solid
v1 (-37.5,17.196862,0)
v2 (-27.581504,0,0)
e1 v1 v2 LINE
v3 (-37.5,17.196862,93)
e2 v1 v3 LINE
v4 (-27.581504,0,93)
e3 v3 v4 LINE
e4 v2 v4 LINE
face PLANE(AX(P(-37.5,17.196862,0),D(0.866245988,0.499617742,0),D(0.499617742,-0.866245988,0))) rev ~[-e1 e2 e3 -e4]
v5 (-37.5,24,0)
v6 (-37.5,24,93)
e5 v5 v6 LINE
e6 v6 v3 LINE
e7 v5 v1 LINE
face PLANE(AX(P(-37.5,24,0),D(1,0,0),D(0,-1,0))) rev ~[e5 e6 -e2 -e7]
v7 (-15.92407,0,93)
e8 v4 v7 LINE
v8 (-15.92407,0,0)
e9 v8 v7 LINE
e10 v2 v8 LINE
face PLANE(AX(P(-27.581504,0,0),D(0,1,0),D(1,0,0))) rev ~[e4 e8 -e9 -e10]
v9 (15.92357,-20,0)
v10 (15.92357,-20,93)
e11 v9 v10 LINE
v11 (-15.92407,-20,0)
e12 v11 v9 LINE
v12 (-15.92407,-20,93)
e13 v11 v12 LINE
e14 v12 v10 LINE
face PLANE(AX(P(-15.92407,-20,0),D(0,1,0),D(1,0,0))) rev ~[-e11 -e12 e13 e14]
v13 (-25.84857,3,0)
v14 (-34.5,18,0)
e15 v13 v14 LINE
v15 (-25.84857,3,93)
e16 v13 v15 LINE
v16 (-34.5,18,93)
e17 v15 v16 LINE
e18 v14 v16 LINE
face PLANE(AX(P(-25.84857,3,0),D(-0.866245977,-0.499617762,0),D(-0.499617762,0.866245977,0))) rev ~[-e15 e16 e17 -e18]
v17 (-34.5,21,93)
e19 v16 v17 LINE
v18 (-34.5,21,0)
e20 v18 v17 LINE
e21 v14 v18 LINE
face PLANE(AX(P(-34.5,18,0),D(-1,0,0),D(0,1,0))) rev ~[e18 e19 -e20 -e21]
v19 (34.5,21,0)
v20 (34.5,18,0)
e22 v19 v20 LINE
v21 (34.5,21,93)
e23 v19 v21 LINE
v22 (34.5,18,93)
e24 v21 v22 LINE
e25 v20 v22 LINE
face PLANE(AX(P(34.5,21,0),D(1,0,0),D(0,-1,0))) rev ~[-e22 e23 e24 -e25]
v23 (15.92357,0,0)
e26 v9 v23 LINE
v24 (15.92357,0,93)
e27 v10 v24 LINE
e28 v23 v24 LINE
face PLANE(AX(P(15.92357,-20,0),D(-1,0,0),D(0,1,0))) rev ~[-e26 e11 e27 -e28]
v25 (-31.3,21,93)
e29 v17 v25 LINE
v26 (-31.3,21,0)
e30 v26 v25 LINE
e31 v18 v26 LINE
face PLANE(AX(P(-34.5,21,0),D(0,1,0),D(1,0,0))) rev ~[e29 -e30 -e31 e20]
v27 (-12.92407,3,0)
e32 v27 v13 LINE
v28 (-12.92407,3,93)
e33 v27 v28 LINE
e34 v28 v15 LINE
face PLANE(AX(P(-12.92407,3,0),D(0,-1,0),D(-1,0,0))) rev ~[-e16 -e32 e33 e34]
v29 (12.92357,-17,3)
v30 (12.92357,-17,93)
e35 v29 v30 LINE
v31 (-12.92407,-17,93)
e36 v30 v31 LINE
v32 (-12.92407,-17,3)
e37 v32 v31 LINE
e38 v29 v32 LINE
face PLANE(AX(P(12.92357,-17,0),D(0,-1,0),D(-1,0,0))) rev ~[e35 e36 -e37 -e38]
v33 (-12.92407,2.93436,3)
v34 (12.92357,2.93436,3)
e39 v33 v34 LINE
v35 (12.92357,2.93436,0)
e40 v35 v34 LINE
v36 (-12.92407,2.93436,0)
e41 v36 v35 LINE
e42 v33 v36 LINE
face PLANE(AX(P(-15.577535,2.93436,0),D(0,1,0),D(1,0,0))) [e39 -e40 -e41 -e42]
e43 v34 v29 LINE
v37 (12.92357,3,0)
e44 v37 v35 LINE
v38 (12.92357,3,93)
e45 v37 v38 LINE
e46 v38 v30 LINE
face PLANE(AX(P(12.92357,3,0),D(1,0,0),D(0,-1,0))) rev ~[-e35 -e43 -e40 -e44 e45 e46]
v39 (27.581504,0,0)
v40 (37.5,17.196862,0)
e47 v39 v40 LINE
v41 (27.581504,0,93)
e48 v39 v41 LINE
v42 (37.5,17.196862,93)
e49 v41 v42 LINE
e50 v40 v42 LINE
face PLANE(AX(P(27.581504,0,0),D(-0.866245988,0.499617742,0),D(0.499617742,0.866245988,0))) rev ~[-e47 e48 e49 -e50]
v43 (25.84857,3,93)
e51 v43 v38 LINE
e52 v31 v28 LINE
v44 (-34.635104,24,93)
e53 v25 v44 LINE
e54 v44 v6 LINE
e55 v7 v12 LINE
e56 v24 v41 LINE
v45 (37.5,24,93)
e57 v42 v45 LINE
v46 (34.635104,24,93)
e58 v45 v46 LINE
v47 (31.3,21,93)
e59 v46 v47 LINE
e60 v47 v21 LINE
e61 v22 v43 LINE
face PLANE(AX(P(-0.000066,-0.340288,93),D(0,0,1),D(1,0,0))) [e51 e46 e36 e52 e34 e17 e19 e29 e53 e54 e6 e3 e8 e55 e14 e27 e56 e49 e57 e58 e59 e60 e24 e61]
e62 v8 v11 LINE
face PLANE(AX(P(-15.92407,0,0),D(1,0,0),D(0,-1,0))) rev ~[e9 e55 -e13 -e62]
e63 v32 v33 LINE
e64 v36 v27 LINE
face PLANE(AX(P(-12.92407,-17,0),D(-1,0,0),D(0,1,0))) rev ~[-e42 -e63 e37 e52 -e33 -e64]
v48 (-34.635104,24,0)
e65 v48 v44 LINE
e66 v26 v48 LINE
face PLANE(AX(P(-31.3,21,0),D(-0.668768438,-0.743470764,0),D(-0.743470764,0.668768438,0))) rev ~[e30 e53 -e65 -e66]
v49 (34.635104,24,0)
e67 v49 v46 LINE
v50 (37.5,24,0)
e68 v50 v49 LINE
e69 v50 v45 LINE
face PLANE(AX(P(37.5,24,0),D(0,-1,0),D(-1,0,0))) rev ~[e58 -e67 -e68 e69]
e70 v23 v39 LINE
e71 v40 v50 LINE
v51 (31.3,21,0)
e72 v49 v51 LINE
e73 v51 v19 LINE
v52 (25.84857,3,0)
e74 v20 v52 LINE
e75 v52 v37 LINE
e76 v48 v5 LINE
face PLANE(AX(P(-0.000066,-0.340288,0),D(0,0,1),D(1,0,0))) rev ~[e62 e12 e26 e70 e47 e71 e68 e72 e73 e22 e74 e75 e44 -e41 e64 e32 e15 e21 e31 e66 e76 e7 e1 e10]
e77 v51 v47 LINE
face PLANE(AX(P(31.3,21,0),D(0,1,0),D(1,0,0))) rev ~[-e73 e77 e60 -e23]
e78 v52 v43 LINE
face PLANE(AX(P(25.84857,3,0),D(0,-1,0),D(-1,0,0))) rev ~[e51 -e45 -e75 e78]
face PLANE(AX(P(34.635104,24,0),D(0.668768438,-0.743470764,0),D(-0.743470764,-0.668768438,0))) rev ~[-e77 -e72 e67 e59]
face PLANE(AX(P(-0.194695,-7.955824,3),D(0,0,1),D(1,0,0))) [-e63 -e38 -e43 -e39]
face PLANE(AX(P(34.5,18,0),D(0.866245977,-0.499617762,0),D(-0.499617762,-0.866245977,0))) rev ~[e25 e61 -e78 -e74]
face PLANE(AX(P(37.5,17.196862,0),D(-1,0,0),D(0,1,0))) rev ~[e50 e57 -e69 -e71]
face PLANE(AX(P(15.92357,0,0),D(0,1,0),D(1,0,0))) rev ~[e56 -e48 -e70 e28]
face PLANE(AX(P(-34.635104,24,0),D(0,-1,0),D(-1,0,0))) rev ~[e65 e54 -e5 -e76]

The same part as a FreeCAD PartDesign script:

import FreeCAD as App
import Part
import Sketcher

V = App.Vector

doc = App.newDocument("Part")
params = doc.addObject("Spreadsheet::Sheet", "Params")
for row, (alias, value) in enumerate([
    ("sketch1_height", "3 mm"),
    ("sketch1_height2", "20 mm"),
    ("sketch1_width", "3.2 mm"),
    ("pad1_length", "93 mm"),
    ("pad2_length", "3 mm"),
], start=1):
    params.set(f"A{row}", alias)
    params.set(f"B{row}", "=" + value)
    params.setAlias(f"B{row}", alias)

body = doc.addObject("PartDesign::Body", "Body")

sketch1 = body.newObject("Sketcher::SketchObject", "Sketch")
sketch1.AttachmentSupport = (doc.getObject("XY_Plane"), [""])
sketch1.MapMode = "FlatFace"
sketch1.addGeometry([
    Part.LineSegment(V(15.9, 0, 0), V(27.6, 0, 0)),
    Part.LineSegment(V(27.6, 0, 0), V(37.5, 17.2, 0)),
    Part.LineSegment(V(37.5, 17.2, 0), V(37.5, 24, 0)),
    Part.LineSegment(V(37.5, 24, 0), V(34.6, 24, 0)),
    Part.LineSegment(V(34.6, 24, 0), V(31.3, 21, 0)),
    Part.LineSegment(V(31.3, 21, 0), V(34.5, 21, 0)),
    Part.LineSegment(V(34.5, 21, 0), V(34.5, 18, 0)),
    Part.LineSegment(V(34.5, 18, 0), V(25.8, 3, 0)),
    Part.LineSegment(V(25.8, 3, 0), V(12.9, 3, 0)),
    Part.LineSegment(V(12.9, 3, 0), V(12.9, -17, 0)),
    Part.LineSegment(V(12.9, -17, 0), V(-12.9, -17, 0)),
    Part.LineSegment(V(-12.9, -17, 0), V(-12.9, 3, 0)),
    Part.LineSegment(V(-12.9, 3, 0), V(-25.8, 3, 0)),
    Part.LineSegment(V(-25.8, 3, 0), V(-34.5, 18, 0)),
    Part.LineSegment(V(-34.5, 18, 0), V(-34.5, 21, 0)),
    Part.LineSegment(V(-34.5, 21, 0), V(-31.3, 21, 0)),
    Part.LineSegment(V(-31.3, 21, 0), V(-34.6, 24, 0)),
    Part.LineSegment(V(-34.6, 24, 0), V(-37.5, 24, 0)),
    Part.LineSegment(V(-37.5, 24, 0), V(-37.5, 17.2, 0)),
    Part.LineSegment(V(-37.5, 17.2, 0), V(-27.6, 0, 0)),
    Part.LineSegment(V(-27.6, 0, 0), V(-15.9, 0, 0)),
    Part.LineSegment(V(-15.9, 0, 0), V(-15.9, -20, 0)),
    Part.LineSegment(V(-15.9, -20, 0), V(15.9, -20, 0)),
    Part.LineSegment(V(15.9, -20, 0), V(15.9, 0, 0)),
], False)
sketch1.addConstraint([
    Sketcher.Constraint("Coincident", 0, 2, 1, 1),
    Sketcher.Constraint("Coincident", 1, 2, 2, 1),
    Sketcher.Constraint("Coincident", 2, 2, 3, 1),
    Sketcher.Constraint("Coincident", 3, 2, 4, 1),
    Sketcher.Constraint("Coincident", 4, 2, 5, 1),
    Sketcher.Constraint("Coincident", 5, 2, 6, 1),
    Sketcher.Constraint("Coincident", 6, 2, 7, 1),
    Sketcher.Constraint("Coincident", 7, 2, 8, 1),
    Sketcher.Constraint("Coincident", 8, 2, 9, 1),
    Sketcher.Constraint("Coincident", 9, 2, 10, 1),
    Sketcher.Constraint("Coincident", 10, 2, 11, 1),
    Sketcher.Constraint("Coincident", 11, 2, 12, 1),
    Sketcher.Constraint("Coincident", 12, 2, 13, 1),
    Sketcher.Constraint("Coincident", 13, 2, 14, 1),
    Sketcher.Constraint("Coincident", 14, 2, 15, 1),
    Sketcher.Constraint("Coincident", 15, 2, 16, 1),
    Sketcher.Constraint("Coincident", 16, 2, 17, 1),
    Sketcher.Constraint("Coincident", 17, 2, 18, 1),
    Sketcher.Constraint("Coincident", 18, 2, 19, 1),
    Sketcher.Constraint("Coincident", 19, 2, 20, 1),
    Sketcher.Constraint("Coincident", 20, 2, 21, 1),
    Sketcher.Constraint("Coincident", 21, 2, 22, 1),
    Sketcher.Constraint("Coincident", 22, 2, 23, 1),
    Sketcher.Constraint("Coincident", 23, 2, 0, 1),
    Sketcher.Constraint("Horizontal", 0),
    Sketcher.Constraint("Vertical", 2),
    Sketcher.Constraint("Horizontal", 3),
    Sketcher.Constraint("Horizontal", 5),
    Sketcher.Constraint("Vertical", 6),
    Sketcher.Constraint("Horizontal", 8),
    Sketcher.Constraint("Vertical", 9),
    Sketcher.Constraint("Horizontal", 10),
    Sketcher.Constraint("Vertical", 11),
    Sketcher.Constraint("Horizontal", 12),
    Sketcher.Constraint("Vertical", 14),
    Sketcher.Constraint("Horizontal", 15),
    Sketcher.Constraint("Horizontal", 17),
    Sketcher.Constraint("Vertical", 18),
    Sketcher.Constraint("Horizontal", 20),
    Sketcher.Constraint("Vertical", 21),
    Sketcher.Constraint("Horizontal", 22),
    Sketcher.Constraint("Vertical", 23),
    Sketcher.Constraint("Symmetric", 0, 2, 19, 2, -1, 1),
    Sketcher.Constraint("Symmetric", 7, 2, 12, 2, -2),
    Sketcher.Constraint("Symmetric", 6, 2, 13, 2, -2),
    Sketcher.Constraint("Symmetric", 4, 2, 15, 2, -2),
    Sketcher.Constraint("Symmetric", 3, 2, 16, 2, -2),
    Sketcher.Constraint("Symmetric", 1, 2, 18, 2, -2),
    Sketcher.Constraint("PointOnObject", 0, 2, -1),
    Sketcher.Constraint("Parallel", 1, 7),
    Sketcher.Constraint("Equal", 11, 21),
    Sketcher.Constraint("DistanceY", 6, 2, 6, 1, 3.0),
    Sketcher.Constraint("DistanceY", 9, 2, 9, 1, 20.0),
    Sketcher.Constraint("DistanceX", 5, 1, 5, 2, 3.2),
    Sketcher.Constraint("DistanceY", -1, 1, 2, 2, 24.0),
    Sketcher.Constraint("DistanceY", -1, 1, 4, 2, 21.0),
    Sketcher.Constraint("DistanceY", -1, 1, 7, 2, 3.0),
    Sketcher.Constraint("DistanceX", 5, 2, 2, 2, 3.0),
    Sketcher.Constraint("DistanceX", 20, 2, 11, 2, 3.0),
    Sketcher.Constraint("DistanceX", 9, 2, 22, 2, 3.0),
    Sketcher.Constraint("DistanceX", -1, 1, 1, 2, 37.5),
    Sketcher.Constraint("DistanceX", 8, 2, 8, 1, 12.925),
    Sketcher.Constraint("DistanceX", 12, 2, 12, 1, 12.9245),
    Sketcher.Constraint("DistanceX", 10, 2, 10, 1, 25.84764),
    Sketcher.Constraint("DistanceY", 2, 1, 2, 2, 6.803138),
    Sketcher.Constraint("DistanceX", 0, 2, 3, 2, 7.0536),
])
sketch1.setExpression("Constraints[51]", "Params.sketch1_height")
sketch1.setExpression("Constraints[52]", "Params.sketch1_height2")
sketch1.setExpression("Constraints[53]", "Params.sketch1_width")
pad1 = body.newObject("PartDesign::Pad", "Pad")
pad1.Profile = sketch1
pad1.setExpression("Length", "Params.pad1_length")

sketch2 = body.newObject("Sketcher::SketchObject", "Sketch001")
sketch2.AttachmentSupport = (doc.getObject("XY_Plane"), [""])
sketch2.MapMode = "FlatFace"
sketch2.addGeometry([
    Part.LineSegment(V(-16, 3, 0), V(-16, -19, 0)),
    Part.LineSegment(V(-16, -19, 0), V(15, -19, 0)),
    Part.LineSegment(V(15, -19, 0), V(15, 3, 0)),
    Part.LineSegment(V(15, 3, 0), V(-16, 3, 0)),
], False)
sketch2.addConstraint([
    Sketcher.Constraint("Coincident", 0, 2, 1, 1),
    Sketcher.Constraint("Coincident", 1, 2, 2, 1),
    Sketcher.Constraint("Coincident", 2, 2, 3, 1),
    Sketcher.Constraint("Coincident", 3, 2, 0, 1),
    Sketcher.Constraint("Vertical", 0),
    Sketcher.Constraint("Horizontal", 1),
    Sketcher.Constraint("Vertical", 2),
    Sketcher.Constraint("Horizontal", 3),
    Sketcher.Constraint("DistanceX", 1, 1, 1, 2, 30.76568),
    Sketcher.Constraint("DistanceY", 0, 2, 0, 1, 21.780368),
    Sketcher.Constraint("DistanceY", 0, 2, -1, 1, 18.846008),
    Sketcher.Constraint("DistanceX", 0, 2, -1, 1, 15.577535),
])
pad2 = body.newObject("PartDesign::Pad", "Pad001")
pad2.Profile = sketch2
pad2.setExpression("Length", "Params.pad2_length")

doc.recompute()
